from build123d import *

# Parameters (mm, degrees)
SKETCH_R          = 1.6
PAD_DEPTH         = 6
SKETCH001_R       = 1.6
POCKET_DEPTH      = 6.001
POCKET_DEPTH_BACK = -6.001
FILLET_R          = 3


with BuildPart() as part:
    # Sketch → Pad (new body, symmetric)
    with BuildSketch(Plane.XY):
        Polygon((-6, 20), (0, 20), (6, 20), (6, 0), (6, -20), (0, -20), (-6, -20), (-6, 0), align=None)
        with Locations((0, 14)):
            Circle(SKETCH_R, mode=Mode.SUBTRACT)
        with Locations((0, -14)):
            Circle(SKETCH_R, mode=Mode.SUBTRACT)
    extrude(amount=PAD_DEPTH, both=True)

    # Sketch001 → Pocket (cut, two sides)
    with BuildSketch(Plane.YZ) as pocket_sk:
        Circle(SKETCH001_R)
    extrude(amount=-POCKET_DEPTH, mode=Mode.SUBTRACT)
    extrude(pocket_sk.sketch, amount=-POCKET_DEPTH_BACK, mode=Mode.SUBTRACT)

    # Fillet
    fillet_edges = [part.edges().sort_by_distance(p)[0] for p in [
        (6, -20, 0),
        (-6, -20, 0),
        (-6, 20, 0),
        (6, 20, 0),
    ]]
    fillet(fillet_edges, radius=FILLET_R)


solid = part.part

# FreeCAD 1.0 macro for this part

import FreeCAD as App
import Part
import Sketcher

V = App.Vector


def edges_at(feature, points):
    """Names of the edges that pass closest to the given points."""
    edges = feature.Shape.Edges
    near = lambda p: min(range(len(edges)), key=lambda i: edges[i].distToShape(Part.Vertex(*p))[0])
    return sorted({f"Edge{near(p) + 1}" for p in points})


def add_polygon(sketch, points):
    """Adds a closed chain of lines whose ends are joined by coincident constraints."""
    first, n = sketch.GeometryCount, len(points)
    for a, b in zip(points, points[1:] + points[:1]):
        sketch.addGeometry(Part.LineSegment(App.Vector(*a, 0), App.Vector(*b, 0)), False)
    for i in range(n):
        sketch.addConstraint(Sketcher.Constraint("Coincident", first + i, 2, first + (i + 1) % n, 1))

doc = App.newDocument("Part")
body = doc.addObject("PartDesign::Body", "Body")

sketch1 = body.newObject("Sketcher::SketchObject", "Sketch")
sketch1.AttachmentSupport = (doc.getObject("XY_Plane"), [""])
sketch1.MapMode = "FlatFace"
add_polygon(sketch1, [(6, 20), (-6, 20), (-6, -20), (6, -20)])
sketch1.addGeometry(Part.Circle(V(0, -14, 0), V(0, 0, 1), 1.6), False)
sketch1.addGeometry(Part.Circle(V(0, 14, 0), V(0, 0, 1), 1.6), False)
sketch1.addConstraint([
    Sketcher.Constraint("Horizontal", 0),
    Sketcher.Constraint("Vertical", 1),
    Sketcher.Constraint("Horizontal", 2),
    Sketcher.Constraint("Vertical", 3),
    Sketcher.Constraint("Equal", 4, 5),
    Sketcher.Constraint("Symmetric", 4, 3, 5, 3, -1, 1),
    Sketcher.Constraint("Symmetric", 0, 2, 2, 2, -1, 1),
    Sketcher.Constraint("PointOnObject", 4, 3, -2),
    Sketcher.Constraint("Diameter", 4, 3.2),
    Sketcher.Constraint("DistanceX", 0, 2, 0, 1, 12.0),
    Sketcher.Constraint("DistanceY", 1, 2, 1, 1, 40.0),
    Sketcher.Constraint("DistanceY", 4, 3, -1, 1, 14.0),
])
pad1 = body.newObject("PartDesign::Pad", "Pad")
pad1.Profile = sketch1
pad1.Length = 12
pad1.Midplane = True

sketch2 = body.newObject("Sketcher::SketchObject", "Sketch001")
sketch2.AttachmentSupport = (doc.getObject("YZ_Plane"), [""])
sketch2.MapMode = "FlatFace"
sketch2.addGeometry(Part.Circle(V(0, 0, 0), V(0, 0, 1), 1.6), False)
sketch2.addConstraint([
    Sketcher.Constraint("Coincident", 0, 3, -1, 1),
    Sketcher.Constraint("Diameter", 0, 3.2),
])
pocket1 = body.newObject("PartDesign::Pocket", "Pocket")
pocket1.Profile = sketch2
pocket1.Type = "ThroughAll"
pocket1.Midplane = True
doc.recompute()

fillet = body.newObject("PartDesign::Fillet", "Fillet")
fillet.Base = (pocket1, edges_at(pocket1, [
    (6, -20, 0),
    (-6, -20, 0),
    (-6, 20, 0),
    (6, 20, 0),
]))
fillet.Radius = 3

doc.recompute()
